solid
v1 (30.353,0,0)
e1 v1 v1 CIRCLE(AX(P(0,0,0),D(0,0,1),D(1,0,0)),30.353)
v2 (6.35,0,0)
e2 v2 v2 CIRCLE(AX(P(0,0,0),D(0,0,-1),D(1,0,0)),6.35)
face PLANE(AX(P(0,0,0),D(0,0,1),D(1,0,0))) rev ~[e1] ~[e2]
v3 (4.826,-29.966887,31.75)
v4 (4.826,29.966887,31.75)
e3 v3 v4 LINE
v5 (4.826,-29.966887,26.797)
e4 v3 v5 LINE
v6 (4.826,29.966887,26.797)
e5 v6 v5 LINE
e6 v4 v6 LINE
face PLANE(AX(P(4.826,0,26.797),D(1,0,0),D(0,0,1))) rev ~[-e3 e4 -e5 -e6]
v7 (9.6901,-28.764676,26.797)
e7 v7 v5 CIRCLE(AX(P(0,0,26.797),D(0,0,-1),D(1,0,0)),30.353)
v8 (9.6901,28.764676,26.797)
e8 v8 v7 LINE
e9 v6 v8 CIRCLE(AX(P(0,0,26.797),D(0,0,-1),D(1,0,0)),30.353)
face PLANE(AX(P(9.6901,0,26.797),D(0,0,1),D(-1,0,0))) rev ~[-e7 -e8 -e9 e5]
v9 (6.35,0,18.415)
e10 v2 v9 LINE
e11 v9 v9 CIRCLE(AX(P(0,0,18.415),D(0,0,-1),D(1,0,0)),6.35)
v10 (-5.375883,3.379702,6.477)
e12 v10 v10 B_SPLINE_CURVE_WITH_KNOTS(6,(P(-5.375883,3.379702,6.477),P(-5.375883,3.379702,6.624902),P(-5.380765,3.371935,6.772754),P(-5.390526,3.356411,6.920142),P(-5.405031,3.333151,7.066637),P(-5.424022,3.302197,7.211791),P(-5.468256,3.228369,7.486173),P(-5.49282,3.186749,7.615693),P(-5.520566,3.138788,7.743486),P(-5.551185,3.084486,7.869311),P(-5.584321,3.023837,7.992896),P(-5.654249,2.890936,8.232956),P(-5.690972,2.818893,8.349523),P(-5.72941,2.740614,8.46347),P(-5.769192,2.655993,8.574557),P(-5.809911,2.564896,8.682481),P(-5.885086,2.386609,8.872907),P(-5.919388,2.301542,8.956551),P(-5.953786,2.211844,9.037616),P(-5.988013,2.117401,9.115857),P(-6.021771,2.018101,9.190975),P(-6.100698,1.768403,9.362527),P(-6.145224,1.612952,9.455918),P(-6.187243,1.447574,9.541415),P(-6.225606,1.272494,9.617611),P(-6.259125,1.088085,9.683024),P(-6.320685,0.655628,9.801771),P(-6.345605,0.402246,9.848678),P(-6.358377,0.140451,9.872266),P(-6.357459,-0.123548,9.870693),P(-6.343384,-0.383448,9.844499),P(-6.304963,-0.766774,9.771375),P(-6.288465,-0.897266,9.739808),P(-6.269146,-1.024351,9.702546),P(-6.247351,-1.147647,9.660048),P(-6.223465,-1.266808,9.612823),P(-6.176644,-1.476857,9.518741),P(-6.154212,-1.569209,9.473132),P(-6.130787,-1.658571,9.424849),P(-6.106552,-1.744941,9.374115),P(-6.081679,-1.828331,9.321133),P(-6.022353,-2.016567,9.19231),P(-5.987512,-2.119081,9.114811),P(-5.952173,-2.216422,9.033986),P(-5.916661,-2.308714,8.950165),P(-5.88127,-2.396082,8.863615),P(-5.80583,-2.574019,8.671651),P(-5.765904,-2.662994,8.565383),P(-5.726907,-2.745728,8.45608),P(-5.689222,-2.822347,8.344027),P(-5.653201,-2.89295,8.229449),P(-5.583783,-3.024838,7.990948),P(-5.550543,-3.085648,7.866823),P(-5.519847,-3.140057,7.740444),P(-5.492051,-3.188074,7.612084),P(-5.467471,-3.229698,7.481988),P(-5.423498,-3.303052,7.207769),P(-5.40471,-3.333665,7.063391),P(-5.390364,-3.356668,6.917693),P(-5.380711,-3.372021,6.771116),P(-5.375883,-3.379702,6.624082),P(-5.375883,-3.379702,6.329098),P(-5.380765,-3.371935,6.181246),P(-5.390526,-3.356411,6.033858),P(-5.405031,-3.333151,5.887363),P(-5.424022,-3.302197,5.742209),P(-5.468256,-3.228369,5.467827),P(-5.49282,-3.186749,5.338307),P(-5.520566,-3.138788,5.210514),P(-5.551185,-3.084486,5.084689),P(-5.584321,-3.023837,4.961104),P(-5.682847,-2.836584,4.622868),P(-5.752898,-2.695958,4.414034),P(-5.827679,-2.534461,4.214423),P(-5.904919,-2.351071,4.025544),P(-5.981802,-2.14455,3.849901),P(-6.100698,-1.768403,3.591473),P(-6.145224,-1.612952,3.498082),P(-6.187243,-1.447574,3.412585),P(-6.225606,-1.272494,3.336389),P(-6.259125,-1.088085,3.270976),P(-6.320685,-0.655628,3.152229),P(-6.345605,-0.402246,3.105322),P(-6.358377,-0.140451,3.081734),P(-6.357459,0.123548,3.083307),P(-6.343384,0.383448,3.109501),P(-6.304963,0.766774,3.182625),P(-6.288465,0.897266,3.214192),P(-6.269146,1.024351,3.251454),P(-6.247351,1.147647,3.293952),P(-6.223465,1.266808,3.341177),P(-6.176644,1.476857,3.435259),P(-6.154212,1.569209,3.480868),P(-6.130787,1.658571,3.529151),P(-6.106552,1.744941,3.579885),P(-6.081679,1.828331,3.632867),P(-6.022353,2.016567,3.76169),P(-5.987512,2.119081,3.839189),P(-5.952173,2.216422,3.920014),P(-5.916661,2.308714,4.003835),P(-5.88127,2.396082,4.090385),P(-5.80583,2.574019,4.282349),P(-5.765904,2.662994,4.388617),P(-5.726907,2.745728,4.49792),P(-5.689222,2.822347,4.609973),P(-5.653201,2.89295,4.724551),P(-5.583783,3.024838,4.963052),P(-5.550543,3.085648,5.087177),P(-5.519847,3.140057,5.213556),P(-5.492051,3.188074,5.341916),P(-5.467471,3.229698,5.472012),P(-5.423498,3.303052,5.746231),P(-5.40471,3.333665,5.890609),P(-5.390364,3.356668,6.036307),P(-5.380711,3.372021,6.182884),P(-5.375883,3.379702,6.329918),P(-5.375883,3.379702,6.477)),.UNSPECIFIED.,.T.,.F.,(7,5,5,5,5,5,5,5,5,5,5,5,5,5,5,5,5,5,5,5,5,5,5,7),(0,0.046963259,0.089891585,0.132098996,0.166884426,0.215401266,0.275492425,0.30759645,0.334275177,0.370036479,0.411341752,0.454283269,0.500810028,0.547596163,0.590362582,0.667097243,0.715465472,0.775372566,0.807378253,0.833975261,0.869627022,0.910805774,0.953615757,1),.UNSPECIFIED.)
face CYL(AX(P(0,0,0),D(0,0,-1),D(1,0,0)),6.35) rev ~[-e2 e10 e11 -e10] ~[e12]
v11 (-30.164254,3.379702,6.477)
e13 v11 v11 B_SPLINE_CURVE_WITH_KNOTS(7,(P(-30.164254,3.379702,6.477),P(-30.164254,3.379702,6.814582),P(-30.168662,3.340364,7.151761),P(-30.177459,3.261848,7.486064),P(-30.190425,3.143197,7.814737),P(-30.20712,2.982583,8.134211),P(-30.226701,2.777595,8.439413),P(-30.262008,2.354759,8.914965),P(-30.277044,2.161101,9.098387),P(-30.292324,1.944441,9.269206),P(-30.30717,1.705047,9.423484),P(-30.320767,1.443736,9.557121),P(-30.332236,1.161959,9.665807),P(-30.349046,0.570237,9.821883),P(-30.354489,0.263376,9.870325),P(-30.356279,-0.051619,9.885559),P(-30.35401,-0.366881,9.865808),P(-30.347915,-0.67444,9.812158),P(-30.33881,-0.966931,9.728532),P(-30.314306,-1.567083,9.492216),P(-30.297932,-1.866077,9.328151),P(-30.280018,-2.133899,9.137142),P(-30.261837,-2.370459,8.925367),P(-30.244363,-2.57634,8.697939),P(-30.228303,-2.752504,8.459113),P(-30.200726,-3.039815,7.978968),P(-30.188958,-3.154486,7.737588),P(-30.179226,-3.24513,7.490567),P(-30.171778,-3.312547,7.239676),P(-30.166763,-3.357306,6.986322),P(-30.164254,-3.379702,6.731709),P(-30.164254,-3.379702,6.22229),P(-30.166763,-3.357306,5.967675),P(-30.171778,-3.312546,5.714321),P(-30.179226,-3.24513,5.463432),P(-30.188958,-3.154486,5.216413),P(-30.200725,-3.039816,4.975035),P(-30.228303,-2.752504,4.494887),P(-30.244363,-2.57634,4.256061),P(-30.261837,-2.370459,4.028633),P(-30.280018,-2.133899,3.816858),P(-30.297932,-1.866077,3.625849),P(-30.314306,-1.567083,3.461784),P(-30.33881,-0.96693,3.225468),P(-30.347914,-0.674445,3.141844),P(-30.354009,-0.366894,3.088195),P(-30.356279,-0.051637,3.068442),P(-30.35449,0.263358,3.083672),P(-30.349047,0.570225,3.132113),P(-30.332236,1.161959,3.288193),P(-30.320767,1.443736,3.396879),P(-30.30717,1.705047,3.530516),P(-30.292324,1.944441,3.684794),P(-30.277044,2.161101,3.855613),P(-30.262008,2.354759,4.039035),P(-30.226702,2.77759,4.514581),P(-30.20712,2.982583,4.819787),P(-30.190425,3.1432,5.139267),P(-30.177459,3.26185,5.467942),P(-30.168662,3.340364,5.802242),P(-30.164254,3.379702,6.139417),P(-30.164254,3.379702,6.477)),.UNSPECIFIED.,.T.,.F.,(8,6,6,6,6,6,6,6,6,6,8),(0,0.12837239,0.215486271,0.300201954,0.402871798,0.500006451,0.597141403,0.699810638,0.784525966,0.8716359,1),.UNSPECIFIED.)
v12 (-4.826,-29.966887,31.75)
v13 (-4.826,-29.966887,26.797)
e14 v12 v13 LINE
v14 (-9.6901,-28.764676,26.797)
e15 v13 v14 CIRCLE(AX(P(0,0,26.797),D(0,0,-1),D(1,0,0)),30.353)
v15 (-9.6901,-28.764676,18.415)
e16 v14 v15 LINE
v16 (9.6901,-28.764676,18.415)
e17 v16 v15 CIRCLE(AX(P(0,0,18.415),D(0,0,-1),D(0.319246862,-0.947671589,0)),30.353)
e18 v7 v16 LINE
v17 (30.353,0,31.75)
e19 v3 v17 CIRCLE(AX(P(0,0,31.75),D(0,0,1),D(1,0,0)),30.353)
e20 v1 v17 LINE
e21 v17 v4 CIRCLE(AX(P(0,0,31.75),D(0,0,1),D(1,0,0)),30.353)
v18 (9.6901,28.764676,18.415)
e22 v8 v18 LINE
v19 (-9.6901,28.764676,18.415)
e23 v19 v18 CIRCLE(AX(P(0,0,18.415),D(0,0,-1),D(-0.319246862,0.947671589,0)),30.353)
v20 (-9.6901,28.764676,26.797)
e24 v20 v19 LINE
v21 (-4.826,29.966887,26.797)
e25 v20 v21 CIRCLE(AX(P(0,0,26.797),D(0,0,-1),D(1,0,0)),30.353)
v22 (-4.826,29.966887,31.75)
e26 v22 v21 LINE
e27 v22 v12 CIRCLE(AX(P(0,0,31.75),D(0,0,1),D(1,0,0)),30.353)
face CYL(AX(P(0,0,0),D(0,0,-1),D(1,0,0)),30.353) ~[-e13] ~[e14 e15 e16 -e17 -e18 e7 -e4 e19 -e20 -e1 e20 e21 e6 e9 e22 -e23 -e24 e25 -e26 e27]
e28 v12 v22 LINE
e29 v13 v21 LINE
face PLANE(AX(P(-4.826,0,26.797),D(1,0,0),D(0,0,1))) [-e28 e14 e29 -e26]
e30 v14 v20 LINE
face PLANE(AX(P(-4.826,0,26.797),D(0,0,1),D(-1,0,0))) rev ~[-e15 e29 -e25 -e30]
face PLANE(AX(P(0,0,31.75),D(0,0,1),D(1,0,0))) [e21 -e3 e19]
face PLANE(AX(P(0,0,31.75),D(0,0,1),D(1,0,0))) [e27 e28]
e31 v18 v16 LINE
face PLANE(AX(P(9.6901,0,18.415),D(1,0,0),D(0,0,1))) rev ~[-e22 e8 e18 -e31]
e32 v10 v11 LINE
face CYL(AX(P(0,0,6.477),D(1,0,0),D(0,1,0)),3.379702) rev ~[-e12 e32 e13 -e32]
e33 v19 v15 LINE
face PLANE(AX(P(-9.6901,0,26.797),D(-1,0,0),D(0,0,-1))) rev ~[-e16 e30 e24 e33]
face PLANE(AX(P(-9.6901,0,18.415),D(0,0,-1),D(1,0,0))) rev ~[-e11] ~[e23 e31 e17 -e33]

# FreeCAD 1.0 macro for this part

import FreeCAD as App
import Part
import Sketcher
from FreeCAD import Vector
Q = App.Units.Quantity

doc = App.newDocument("Part")
body = doc.addObject("PartDesign::Body", "Body")

sketch1 = body.newObject("Sketcher::SketchObject", "Sketch")
sketch1.AttachmentSupport = (doc.getObject("XY_Plane"), [""])
sketch1.MapMode = "FlatFace"
sketch1.addGeometry(Part.Circle(Vector(0, 0, 0), Vector(0, 0, 1), 30), False)
sketch1.addConstraint([
    Sketcher.Constraint("Coincident", 0, 3, -1, 1),
    Sketcher.Constraint("Diameter", 0, Q("2.39 in")),
])
pad1 = body.newObject("PartDesign::Pad", "Pad")
pad1.Profile = sketch1
pad1.Length = Q("1.25 in")

sketch2 = body.newObject("Sketcher::SketchObject", "Sketch001")
sketch2.AttachmentSupport = (doc.getObject("XY_Plane"), [""])
sketch2.MapMode = "FlatFace"
sketch2.addGeometry(Part.Circle(Vector(0, 0, 0), Vector(0, 0, 1), 6), False)
sketch2.addConstraint([
    Sketcher.Constraint("Coincident", 0, 3, -1, 1),
    Sketcher.Constraint("Diameter", 0, Q("0.5 in")),
])
pocket1 = body.newObject("PartDesign::Pocket", "Pocket")
pocket1.Profile = sketch2
pocket1.Length = Q("0.725 in")
pocket1.Reversed = True

sketch3 = body.newObject("Sketcher::SketchObject", "Sketch002")
sketch3.AttachmentSupport = (doc.getObject("XZ_Plane"), [""])
sketch3.MapMode = "FlatFace"
sketch3.addGeometry([
    Part.LineSegment(Vector(-9.7, 26.8, 0), Vector(-9.7, 18.4, 0)),
    Part.LineSegment(Vector(-9.7, 18.4, 0), Vector(9.7, 18.4, 0)),
    Part.LineSegment(Vector(9.7, 18.4, 0), Vector(9.7, 26.8, 0)),
    Part.LineSegment(Vector(9.7, 26.8, 0), Vector(4.8, 26.8, 0)),
    Part.LineSegment(Vector(4.8, 26.8, 0), Vector(4.8, 33.4, 0)),
    Part.LineSegment(Vector(4.8, 33.4, 0), Vector(-4.8, 33.4, 0)),
    Part.LineSegment(Vector(-4.8, 33.4, 0), Vector(-4.8, 26.8, 0)),
    Part.LineSegment(Vector(-4.8, 26.8, 0), Vector(-9.7, 26.8, 0)),
], False)
sketch3.addConstraint([
    Sketcher.Constraint("Coincident", 0, 2, 1, 1),
    Sketcher.Constraint("Coincident", 1, 2, 2, 1),
    Sketcher.Constraint("Coincident", 2, 2, 3, 1),
    Sketcher.Constraint("Coincident", 3, 2, 4, 1),
    Sketcher.Constraint("Coincident", 4, 2, 5, 1),
    Sketcher.Constraint("Coincident", 5, 2, 6, 1),
    Sketcher.Constraint("Coincident", 6, 2, 7, 1),
    Sketcher.Constraint("Coincident", 7, 2, 0, 1),
    Sketcher.Constraint("Vertical", 0),
    Sketcher.Constraint("Horizontal", 1),
    Sketcher.Constraint("Vertical", 2),
    Sketcher.Constraint("Horizontal", 3),
    Sketcher.Constraint("Vertical", 4),
    Sketcher.Constraint("Horizontal", 5),
    Sketcher.Constraint("Vertical", 6),
    Sketcher.Constraint("Horizontal", 7),
    Sketcher.Constraint("Symmetric", 3, 2, 6, 2, -2),
    Sketcher.Constraint("Equal", 3, 7),
    Sketcher.Constraint("DistanceX", 5, 2, 5, 1, Q("0.38 in")),
    Sketcher.Constraint("DistanceY", 0, 2, 0, 1, Q("0.33 in")),
    Sketcher.Constraint("DistanceX", 1, 1, 1, 2, Q("0.763 in")),
    Sketcher.Constraint("DistanceY", -1, 1, 0, 2, Q("0.725 in")),
    Sketcher.Constraint("DistanceY", 4, 1, 4, 2, 6.5577),
])
pocket2 = body.newObject("PartDesign::Pocket", "Pocket001")
pocket2.Profile = sketch3
pocket2.Length = Q("2.39 in")
pocket2.Midplane = True

sketch4 = body.newObject("Sketcher::SketchObject", "Sketch003")
sketch4.AttachmentSupport = (doc.getObject("YZ_Plane"), [""])
sketch4.MapMode = "FlatFace"
sketch4.addGeometry(Part.Circle(Vector(0, 6.5, 0), Vector(0, 0, 1), 3.4), False)
sketch4.addConstraint([
    Sketcher.Constraint("PointOnObject", 0, 3, -2),
    Sketcher.Constraint("DistanceY", -1, 1, 0, 3, Q("0.255 in")),
    Sketcher.Constraint("Diameter", 0, 6.759404),
])
pocket3 = body.newObject("PartDesign::Pocket", "Pocket002")
pocket3.Profile = sketch4
pocket3.Length = Q("2.39 in")

doc.recompute()
